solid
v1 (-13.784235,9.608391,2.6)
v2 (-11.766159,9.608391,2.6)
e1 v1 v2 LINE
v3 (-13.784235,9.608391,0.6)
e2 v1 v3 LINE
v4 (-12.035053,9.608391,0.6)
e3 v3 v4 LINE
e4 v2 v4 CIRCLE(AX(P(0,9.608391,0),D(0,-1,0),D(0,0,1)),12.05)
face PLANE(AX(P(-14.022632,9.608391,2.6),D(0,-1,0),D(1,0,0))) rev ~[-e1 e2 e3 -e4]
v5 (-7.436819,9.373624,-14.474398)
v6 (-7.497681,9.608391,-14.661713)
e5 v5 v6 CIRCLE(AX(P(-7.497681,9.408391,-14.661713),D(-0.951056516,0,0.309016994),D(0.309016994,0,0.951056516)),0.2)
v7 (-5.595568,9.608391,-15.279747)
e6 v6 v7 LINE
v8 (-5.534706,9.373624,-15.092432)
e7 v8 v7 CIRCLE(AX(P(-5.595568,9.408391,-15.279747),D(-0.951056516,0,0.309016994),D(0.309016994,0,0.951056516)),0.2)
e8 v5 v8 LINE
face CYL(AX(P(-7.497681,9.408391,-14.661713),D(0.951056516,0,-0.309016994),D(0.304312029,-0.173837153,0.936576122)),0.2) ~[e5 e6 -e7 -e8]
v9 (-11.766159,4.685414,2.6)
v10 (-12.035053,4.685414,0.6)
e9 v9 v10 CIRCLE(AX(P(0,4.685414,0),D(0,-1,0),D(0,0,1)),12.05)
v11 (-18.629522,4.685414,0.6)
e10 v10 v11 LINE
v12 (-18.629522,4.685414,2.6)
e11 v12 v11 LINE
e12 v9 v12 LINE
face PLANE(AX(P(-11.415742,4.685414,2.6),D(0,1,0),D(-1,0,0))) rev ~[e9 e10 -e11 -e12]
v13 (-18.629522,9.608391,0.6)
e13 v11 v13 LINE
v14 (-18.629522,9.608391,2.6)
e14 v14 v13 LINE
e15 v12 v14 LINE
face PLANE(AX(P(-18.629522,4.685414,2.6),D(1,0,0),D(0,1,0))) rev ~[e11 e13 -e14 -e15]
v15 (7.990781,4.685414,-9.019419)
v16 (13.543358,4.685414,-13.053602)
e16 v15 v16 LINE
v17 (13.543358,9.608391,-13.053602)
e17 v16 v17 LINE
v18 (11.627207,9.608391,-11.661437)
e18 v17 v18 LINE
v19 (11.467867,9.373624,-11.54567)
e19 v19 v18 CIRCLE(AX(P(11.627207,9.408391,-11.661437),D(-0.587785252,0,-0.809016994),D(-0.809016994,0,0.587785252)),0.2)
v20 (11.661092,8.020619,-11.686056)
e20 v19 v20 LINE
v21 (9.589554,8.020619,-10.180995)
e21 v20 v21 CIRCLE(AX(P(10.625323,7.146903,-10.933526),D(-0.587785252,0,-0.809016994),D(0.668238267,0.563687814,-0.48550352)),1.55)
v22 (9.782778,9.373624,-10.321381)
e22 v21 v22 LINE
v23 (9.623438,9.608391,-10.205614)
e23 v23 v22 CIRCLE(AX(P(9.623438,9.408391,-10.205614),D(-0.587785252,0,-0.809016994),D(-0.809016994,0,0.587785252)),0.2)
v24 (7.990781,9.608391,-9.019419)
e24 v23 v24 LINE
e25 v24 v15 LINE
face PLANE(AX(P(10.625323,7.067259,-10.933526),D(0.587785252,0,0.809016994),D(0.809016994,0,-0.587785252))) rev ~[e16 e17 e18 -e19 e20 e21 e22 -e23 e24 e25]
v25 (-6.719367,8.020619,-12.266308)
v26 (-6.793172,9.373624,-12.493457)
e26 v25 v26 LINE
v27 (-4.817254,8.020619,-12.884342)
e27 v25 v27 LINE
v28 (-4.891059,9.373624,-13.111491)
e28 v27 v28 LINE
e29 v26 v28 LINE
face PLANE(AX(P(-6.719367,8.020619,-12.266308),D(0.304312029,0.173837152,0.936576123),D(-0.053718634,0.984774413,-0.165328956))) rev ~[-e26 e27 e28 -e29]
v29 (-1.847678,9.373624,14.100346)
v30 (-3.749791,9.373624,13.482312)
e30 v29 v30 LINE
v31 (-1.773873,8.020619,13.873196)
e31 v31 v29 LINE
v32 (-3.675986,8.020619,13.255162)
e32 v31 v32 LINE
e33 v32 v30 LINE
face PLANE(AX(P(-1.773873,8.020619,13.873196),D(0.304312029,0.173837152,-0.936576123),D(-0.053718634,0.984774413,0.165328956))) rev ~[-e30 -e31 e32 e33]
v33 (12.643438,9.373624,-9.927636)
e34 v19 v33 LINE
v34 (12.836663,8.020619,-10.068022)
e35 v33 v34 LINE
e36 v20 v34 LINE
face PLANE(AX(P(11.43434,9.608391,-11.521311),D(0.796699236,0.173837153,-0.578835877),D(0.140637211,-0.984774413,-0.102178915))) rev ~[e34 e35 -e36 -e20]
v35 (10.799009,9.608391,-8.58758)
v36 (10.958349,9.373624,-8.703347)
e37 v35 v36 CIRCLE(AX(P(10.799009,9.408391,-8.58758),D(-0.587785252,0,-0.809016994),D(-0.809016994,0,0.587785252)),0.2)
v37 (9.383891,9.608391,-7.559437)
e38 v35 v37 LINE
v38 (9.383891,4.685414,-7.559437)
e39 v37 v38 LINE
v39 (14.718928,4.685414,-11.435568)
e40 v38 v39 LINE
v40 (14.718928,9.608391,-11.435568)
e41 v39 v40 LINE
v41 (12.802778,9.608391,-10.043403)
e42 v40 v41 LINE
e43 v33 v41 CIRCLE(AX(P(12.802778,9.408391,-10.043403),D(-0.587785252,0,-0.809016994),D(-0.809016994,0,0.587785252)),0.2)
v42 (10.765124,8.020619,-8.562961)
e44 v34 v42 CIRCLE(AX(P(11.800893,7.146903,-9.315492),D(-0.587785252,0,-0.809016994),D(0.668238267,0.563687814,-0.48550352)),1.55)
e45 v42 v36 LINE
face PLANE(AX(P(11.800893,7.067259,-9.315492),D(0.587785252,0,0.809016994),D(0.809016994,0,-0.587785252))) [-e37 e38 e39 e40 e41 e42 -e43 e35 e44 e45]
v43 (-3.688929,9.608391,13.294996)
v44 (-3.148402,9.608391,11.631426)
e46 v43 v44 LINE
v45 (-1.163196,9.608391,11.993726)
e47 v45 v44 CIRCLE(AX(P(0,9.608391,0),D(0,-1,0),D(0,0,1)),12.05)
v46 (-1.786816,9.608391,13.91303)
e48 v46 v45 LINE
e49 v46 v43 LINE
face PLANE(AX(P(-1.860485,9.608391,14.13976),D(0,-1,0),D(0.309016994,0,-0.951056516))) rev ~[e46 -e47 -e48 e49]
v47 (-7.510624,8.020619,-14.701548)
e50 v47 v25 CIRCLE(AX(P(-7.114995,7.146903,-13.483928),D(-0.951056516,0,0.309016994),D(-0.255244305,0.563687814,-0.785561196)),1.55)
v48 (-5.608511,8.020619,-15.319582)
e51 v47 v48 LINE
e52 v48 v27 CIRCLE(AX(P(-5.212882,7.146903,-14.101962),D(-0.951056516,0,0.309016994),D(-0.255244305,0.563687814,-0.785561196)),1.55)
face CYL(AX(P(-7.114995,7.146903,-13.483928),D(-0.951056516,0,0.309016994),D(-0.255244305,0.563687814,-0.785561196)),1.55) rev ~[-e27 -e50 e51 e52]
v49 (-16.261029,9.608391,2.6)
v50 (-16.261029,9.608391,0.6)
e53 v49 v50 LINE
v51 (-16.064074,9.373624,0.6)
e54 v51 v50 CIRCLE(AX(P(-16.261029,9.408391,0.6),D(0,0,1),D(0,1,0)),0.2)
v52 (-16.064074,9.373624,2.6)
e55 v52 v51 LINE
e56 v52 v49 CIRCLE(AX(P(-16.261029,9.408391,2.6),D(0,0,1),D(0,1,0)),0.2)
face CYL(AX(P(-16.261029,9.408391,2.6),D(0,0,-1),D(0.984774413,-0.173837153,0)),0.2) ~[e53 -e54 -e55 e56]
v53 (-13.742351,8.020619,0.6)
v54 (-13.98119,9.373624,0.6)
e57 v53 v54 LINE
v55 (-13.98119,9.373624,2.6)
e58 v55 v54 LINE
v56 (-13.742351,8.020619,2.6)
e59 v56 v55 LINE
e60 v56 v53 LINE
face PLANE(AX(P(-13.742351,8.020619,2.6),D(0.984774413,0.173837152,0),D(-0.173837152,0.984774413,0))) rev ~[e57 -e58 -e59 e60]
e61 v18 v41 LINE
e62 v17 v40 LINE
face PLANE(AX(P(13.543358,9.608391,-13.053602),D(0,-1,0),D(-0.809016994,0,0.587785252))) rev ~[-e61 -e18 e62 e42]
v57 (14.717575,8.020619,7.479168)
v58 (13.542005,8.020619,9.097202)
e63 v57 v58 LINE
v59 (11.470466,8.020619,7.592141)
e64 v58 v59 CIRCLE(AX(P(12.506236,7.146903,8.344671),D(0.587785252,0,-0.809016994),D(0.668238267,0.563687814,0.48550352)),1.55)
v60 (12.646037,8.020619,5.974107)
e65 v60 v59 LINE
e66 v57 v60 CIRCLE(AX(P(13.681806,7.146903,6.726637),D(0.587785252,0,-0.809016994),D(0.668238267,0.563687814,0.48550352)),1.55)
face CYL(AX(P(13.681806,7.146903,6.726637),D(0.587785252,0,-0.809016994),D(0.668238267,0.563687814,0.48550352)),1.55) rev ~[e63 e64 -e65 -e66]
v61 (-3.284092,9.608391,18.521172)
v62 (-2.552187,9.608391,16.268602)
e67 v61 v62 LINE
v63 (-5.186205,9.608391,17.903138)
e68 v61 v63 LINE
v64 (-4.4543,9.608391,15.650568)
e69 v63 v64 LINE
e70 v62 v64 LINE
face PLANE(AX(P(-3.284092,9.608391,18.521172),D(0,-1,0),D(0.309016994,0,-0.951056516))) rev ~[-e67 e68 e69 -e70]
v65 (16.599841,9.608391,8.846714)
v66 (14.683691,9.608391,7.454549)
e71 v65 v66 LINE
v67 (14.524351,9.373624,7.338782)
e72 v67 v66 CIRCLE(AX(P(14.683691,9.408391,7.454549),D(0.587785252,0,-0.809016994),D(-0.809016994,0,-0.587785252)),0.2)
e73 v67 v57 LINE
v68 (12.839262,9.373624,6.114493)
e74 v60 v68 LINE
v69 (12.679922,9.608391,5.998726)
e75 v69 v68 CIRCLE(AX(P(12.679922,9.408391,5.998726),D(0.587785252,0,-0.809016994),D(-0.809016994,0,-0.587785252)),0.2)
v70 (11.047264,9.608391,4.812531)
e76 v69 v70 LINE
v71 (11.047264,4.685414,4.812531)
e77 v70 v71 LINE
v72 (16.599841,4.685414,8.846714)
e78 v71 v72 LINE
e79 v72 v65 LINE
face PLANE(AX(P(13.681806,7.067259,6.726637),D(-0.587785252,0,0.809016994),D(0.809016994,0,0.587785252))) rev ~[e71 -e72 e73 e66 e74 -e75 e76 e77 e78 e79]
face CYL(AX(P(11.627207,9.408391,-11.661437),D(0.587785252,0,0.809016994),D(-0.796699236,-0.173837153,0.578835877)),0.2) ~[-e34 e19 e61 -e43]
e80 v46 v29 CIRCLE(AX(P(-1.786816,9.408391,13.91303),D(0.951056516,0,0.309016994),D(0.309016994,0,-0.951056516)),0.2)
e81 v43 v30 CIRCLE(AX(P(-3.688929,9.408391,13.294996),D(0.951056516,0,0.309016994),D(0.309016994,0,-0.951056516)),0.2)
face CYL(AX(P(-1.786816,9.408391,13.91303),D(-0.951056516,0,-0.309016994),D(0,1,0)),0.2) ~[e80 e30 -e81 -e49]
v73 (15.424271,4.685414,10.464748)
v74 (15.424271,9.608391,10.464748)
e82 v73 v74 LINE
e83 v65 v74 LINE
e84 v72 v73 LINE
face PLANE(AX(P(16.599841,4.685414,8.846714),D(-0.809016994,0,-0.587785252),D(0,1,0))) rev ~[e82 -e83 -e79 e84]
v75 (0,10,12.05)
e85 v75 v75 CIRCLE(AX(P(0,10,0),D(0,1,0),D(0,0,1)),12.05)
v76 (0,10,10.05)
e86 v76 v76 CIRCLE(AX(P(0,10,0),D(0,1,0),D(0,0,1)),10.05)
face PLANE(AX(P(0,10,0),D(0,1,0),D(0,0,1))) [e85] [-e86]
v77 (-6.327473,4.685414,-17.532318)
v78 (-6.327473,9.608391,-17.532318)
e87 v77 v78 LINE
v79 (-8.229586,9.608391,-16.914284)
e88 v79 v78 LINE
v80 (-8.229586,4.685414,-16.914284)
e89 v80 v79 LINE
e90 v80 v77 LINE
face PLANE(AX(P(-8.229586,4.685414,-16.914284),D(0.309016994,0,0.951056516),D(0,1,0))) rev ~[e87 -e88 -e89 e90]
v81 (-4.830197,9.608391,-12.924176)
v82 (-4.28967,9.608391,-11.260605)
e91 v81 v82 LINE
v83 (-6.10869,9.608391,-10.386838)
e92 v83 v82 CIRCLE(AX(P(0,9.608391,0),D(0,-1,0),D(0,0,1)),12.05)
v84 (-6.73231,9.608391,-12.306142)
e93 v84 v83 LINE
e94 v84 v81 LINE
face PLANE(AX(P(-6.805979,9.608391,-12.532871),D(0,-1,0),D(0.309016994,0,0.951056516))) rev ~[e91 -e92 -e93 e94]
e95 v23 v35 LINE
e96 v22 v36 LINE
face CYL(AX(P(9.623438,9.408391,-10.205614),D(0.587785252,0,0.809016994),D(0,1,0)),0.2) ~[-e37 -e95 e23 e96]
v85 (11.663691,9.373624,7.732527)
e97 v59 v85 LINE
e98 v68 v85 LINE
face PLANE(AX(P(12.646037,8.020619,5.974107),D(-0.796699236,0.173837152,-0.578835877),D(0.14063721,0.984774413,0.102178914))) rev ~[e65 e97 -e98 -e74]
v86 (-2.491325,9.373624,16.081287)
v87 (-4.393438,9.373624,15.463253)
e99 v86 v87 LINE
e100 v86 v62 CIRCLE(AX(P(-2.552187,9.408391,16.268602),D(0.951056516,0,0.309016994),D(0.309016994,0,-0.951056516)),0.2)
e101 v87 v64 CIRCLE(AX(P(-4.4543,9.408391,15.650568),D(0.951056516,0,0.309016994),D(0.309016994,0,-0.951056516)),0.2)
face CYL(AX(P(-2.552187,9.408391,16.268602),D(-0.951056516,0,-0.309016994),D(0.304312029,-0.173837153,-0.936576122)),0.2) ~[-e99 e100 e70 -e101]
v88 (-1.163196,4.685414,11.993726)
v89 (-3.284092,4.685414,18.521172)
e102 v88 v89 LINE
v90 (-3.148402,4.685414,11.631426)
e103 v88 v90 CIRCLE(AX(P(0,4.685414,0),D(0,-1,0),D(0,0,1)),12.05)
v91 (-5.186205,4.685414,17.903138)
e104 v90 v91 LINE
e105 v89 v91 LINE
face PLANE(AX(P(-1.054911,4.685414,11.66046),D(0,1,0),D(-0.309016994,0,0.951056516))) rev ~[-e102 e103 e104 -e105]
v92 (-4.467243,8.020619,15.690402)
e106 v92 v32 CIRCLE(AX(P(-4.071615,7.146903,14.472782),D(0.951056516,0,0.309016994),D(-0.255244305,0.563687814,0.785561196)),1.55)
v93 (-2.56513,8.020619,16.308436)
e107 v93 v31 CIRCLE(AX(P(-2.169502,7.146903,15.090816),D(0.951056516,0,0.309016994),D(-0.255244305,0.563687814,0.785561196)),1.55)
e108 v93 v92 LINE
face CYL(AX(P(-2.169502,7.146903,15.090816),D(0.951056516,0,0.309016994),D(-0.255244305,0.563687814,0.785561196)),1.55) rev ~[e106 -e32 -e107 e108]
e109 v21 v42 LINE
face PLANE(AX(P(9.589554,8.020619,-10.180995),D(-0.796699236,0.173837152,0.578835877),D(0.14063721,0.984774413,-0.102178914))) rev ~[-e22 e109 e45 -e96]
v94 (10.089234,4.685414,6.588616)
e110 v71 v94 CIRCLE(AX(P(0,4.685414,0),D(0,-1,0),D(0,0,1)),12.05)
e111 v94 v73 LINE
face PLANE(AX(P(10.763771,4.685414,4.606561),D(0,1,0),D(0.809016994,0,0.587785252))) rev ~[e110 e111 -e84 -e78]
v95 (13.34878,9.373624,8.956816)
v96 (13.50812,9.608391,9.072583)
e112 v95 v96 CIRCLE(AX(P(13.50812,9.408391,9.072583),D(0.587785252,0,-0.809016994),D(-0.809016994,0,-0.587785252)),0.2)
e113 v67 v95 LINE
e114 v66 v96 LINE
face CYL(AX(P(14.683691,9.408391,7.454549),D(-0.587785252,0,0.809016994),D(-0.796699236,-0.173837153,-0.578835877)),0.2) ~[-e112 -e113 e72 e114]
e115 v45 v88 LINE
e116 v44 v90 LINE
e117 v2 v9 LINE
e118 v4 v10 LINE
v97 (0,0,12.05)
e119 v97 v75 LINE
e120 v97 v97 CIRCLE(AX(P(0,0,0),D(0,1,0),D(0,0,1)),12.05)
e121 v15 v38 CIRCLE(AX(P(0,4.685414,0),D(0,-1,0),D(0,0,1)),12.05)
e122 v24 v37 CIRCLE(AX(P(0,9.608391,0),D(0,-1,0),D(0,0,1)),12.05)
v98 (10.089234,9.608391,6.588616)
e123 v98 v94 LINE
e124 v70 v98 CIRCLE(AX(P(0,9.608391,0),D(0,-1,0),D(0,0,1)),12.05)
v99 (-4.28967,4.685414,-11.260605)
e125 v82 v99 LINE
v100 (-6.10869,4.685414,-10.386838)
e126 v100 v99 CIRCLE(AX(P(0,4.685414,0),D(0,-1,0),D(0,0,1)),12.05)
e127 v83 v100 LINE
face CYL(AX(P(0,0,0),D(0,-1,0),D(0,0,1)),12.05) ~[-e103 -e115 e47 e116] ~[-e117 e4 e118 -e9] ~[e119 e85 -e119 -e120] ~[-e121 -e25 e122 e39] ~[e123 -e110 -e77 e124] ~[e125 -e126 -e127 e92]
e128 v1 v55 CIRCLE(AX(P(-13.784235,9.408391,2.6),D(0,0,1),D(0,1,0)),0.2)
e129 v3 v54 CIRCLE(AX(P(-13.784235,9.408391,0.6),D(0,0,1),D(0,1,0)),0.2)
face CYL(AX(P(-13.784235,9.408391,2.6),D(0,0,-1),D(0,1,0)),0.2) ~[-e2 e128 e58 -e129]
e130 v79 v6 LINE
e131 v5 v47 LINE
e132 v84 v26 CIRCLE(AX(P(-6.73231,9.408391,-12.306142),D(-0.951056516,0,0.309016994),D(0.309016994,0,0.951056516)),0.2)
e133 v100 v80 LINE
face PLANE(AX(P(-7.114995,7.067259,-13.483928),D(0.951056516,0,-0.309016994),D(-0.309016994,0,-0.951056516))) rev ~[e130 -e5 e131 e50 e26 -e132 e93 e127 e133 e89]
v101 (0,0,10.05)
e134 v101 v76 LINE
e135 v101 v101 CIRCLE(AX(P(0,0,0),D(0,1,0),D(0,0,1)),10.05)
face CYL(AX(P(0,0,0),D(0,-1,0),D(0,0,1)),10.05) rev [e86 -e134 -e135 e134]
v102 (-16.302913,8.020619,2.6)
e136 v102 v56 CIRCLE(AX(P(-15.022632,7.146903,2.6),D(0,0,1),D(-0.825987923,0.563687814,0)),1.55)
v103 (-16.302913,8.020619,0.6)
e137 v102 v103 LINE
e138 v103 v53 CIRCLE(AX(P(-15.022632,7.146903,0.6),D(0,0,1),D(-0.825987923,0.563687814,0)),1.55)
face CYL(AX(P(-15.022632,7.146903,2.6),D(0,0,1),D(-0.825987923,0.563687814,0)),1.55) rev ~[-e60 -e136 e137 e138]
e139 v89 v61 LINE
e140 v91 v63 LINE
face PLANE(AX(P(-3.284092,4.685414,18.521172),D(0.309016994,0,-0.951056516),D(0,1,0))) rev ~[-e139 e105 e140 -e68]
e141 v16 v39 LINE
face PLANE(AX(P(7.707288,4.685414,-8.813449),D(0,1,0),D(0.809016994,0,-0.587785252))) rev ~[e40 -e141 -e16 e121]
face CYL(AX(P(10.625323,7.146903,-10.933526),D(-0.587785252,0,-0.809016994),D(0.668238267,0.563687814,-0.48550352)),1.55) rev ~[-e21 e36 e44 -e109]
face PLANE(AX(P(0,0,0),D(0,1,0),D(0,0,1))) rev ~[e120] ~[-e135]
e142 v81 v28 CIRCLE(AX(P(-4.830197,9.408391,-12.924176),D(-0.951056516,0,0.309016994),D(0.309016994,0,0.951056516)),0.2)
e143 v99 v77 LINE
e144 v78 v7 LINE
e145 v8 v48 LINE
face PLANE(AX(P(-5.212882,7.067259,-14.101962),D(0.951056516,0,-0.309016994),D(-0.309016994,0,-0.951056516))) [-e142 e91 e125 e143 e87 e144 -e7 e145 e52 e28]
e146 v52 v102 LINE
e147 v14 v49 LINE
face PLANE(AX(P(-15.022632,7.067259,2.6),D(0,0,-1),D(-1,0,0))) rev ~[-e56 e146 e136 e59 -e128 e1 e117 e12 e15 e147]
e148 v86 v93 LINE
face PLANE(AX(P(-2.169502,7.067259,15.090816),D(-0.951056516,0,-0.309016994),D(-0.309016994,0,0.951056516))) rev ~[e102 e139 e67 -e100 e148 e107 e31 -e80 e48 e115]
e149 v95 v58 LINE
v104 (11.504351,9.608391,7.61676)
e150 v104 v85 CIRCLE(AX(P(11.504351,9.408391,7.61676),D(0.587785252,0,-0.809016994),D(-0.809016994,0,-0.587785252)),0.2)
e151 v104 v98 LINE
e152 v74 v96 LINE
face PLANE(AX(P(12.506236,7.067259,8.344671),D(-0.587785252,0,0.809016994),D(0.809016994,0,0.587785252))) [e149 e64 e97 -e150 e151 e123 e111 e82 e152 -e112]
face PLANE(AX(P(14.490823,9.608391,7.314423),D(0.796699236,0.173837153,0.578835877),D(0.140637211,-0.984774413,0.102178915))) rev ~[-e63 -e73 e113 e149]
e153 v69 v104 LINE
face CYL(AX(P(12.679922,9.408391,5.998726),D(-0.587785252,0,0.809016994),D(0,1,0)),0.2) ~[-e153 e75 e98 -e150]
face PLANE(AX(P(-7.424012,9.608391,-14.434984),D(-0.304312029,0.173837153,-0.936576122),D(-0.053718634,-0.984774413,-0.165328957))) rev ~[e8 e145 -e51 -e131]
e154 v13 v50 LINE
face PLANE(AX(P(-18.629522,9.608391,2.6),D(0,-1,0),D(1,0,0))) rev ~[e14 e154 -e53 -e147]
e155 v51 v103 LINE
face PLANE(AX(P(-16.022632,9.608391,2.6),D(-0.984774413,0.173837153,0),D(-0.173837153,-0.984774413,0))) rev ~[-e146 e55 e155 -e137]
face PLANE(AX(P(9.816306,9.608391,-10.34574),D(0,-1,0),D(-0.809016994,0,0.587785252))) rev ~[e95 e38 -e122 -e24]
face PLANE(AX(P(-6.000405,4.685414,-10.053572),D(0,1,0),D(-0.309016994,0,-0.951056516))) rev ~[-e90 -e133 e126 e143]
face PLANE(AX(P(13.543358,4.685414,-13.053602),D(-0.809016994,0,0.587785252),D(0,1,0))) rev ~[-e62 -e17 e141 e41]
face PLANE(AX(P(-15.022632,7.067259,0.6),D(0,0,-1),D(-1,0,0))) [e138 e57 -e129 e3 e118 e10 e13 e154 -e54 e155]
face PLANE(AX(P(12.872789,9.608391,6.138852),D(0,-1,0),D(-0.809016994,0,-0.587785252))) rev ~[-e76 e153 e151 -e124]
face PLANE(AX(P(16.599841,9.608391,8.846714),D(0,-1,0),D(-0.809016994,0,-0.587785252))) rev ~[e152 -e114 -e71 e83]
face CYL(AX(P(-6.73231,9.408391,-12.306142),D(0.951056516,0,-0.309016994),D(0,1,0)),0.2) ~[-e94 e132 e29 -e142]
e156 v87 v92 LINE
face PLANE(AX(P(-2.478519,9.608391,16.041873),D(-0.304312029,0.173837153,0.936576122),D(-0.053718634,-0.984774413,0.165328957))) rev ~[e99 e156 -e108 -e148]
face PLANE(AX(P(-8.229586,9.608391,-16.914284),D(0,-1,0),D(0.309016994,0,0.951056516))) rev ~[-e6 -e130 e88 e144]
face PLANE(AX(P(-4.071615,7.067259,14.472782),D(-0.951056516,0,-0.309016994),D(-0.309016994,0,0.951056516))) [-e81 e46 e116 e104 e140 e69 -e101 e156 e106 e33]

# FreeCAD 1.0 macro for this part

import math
import FreeCAD as App
import Part
import Sketcher

V = App.Vector
Q = App.Units.Quantity


def edges_at(feature, points):
    """Names of the edges that pass closest to the given points."""
    edges = feature.Shape.Edges
    near = lambda p: min(range(len(edges)), key=lambda i: edges[i].distToShape(Part.Vertex(*p))[0])
    return sorted({f"Edge{near(p) + 1}" for p in points})

doc = App.newDocument("Part")
body = doc.addObject("PartDesign::Body", "Body")

# Sketch on XZ plane
sketch1 = body.newObject("Sketcher::SketchObject", "Sketch")
sketch1.AttachmentSupport = (doc.getObject("XZ_Plane"), [""])
sketch1.MapMode = "FlatFace"
sketch1.addGeometry([
    Part.Circle(V(0, 0, 0), V(0, 0, 1), 12.05),
    Part.Circle(V(0, 0, 0), V(0, 0, 1), 10.05),
], False)
sketch1.addConstraint([
    Sketcher.Constraint("Coincident", 0, 3, -1, 1),
    Sketcher.Constraint("Coincident", 1, 3, -1, 1),
    Sketcher.Constraint("Diameter", 0, Q("24.1 mm")),
    Sketcher.Constraint("Diameter", 1, Q("20.1 mm")),
])
pad1 = body.newObject("PartDesign::Pad", "Pad")
pad1.Profile = sketch1
pad1.Length = 10
pad1.Reversed = True

# Sketch on XY plane
sketch2 = body.newObject("Sketcher::SketchObject", "Sketch001")
sketch2.AttachmentSupport = (doc.getObject("XY_Plane"), [""])
sketch2.MapMode = "FlatFace"
sketch2.AttachmentOffset = App.Placement(V(0, 0, 2.6), App.Rotation())
sketch2.addGeometry([
    Part.LineSegment(V(-14.022632, 9.608391, 0), V(-11.415742, 9.608391, 0)),  # 0
    Part.LineSegment(V(-11.415742, 9.608391, 0), V(-11.415742, 4.685414, 0)),  # 1
    Part.LineSegment(V(-11.415742, 4.685414, 0), V(-18.629522, 4.685414, 0)),  # 2
    Part.LineSegment(V(-18.629522, 4.685414, 0), V(-18.629522, 9.608391, 0)),  # 3
    Part.LineSegment(V(-18.629522, 9.608391, 0), V(-16.022632, 9.608391, 0)),  # 4
    Part.LineSegment(V(-16.022632, 9.608391, 0), V(-16.302913, 8.020619, 0)),  # 5
    Part.ArcOfCircle(Part.Circle(V(-15.022632, 7.146903, 0), V(0, 0, 1), 1.55), math.radians(145.68878), math.radians(394.31122)),  # 6
    Part.LineSegment(V(-13.742351, 8.020619, 0), V(-14.022632, 9.608391, 0)),  # 7
], False)
sketch2.addConstraint([
    Sketcher.Constraint("Coincident", 0, 2, 1, 1),
    Sketcher.Constraint("Coincident", 1, 2, 2, 1),
    Sketcher.Constraint("Coincident", 2, 2, 3, 1),
    Sketcher.Constraint("Coincident", 3, 2, 4, 1),
    Sketcher.Constraint("Coincident", 4, 2, 5, 1),
    Sketcher.Constraint("Coincident", 5, 2, 6, 1),
    Sketcher.Constraint("Coincident", 6, 2, 7, 1),
    Sketcher.Constraint("Coincident", 7, 2, 0, 1),
    Sketcher.Constraint("Horizontal", 0),
    Sketcher.Constraint("Vertical", 1),
    Sketcher.Constraint("Horizontal", 2),
    Sketcher.Constraint("Vertical", 3),
    Sketcher.Constraint("Horizontal", 4),
    Sketcher.Constraint("Horizontal", 0, 2, 3, 2),
    Sketcher.Constraint("Horizontal", 5, 2, 6, 2),
    Sketcher.Constraint("Equal", 0, 4),
    Sketcher.Constraint("Equal", 5, 7),
    Sketcher.Constraint("Radius", 6, Q("1.55 mm")),
    Sketcher.Constraint("DistanceX", 4, 2, 6, 3, Q("1 mm")),
    Sketcher.Constraint("DistanceX", 0, 1, 0, 2, Q("2.60689 mm")),
    Sketcher.Constraint("Distance", 5, Q("1.612321 mm")),
    Sketcher.Constraint("DistanceY", 1, 2, 1, 1, Q("4.922977 mm")),
    Sketcher.Constraint("DistanceX", 6, 3, -1, 1, Q("15.022632 mm")),
    Sketcher.Constraint("DistanceY", -1, 1, 0, 2, Q("9.608391 mm")),
    Sketcher.Constraint("DistanceY", -1, 1, 5, 2, Q("8.020619 mm")),
])
pad2 = body.newObject("PartDesign::Pad", "Pad001")
pad2.Profile = sketch2
pad2.Length = 2
pad2.Reversed = True
doc.recompute()

fillet = body.newObject("PartDesign::Fillet", "Fillet")
fillet.Base = (pad2, edges_at(pad2, [(-14.023, 9.608, 1.6), (-16.023, 9.608, 1.6)]))
fillet.Radius = 0.2
doc.recompute()

polarpattern = body.newObject("PartDesign::PolarPattern", "PolarPattern")
polarpattern.Originals = [pad2]
polarpattern.Axis = (doc.getObject("Y_Axis"), [""])
polarpattern.Angle = 360
polarpattern.Occurrences = 5
body.Tip = polarpattern
doc.recompute()

fillet2 = body.newObject("PartDesign::Fillet", "Fillet001")
fillet2.Base = (polarpattern, edges_at(polarpattern, [
    (-2.812, 9.608, 13.831),
    (-3.43, 9.608, 15.733),
    (12.285, 9.608, 6.948),
    (13.903, 9.608, 8.123),
    (10.404, 9.608, -9.537),
    (12.022, 9.608, -10.712),
    (-5.855, 9.608, -12.842),
    (-6.473, 9.608, -14.744),
]))
fillet2.Radius = 0.2

doc.recompute()
